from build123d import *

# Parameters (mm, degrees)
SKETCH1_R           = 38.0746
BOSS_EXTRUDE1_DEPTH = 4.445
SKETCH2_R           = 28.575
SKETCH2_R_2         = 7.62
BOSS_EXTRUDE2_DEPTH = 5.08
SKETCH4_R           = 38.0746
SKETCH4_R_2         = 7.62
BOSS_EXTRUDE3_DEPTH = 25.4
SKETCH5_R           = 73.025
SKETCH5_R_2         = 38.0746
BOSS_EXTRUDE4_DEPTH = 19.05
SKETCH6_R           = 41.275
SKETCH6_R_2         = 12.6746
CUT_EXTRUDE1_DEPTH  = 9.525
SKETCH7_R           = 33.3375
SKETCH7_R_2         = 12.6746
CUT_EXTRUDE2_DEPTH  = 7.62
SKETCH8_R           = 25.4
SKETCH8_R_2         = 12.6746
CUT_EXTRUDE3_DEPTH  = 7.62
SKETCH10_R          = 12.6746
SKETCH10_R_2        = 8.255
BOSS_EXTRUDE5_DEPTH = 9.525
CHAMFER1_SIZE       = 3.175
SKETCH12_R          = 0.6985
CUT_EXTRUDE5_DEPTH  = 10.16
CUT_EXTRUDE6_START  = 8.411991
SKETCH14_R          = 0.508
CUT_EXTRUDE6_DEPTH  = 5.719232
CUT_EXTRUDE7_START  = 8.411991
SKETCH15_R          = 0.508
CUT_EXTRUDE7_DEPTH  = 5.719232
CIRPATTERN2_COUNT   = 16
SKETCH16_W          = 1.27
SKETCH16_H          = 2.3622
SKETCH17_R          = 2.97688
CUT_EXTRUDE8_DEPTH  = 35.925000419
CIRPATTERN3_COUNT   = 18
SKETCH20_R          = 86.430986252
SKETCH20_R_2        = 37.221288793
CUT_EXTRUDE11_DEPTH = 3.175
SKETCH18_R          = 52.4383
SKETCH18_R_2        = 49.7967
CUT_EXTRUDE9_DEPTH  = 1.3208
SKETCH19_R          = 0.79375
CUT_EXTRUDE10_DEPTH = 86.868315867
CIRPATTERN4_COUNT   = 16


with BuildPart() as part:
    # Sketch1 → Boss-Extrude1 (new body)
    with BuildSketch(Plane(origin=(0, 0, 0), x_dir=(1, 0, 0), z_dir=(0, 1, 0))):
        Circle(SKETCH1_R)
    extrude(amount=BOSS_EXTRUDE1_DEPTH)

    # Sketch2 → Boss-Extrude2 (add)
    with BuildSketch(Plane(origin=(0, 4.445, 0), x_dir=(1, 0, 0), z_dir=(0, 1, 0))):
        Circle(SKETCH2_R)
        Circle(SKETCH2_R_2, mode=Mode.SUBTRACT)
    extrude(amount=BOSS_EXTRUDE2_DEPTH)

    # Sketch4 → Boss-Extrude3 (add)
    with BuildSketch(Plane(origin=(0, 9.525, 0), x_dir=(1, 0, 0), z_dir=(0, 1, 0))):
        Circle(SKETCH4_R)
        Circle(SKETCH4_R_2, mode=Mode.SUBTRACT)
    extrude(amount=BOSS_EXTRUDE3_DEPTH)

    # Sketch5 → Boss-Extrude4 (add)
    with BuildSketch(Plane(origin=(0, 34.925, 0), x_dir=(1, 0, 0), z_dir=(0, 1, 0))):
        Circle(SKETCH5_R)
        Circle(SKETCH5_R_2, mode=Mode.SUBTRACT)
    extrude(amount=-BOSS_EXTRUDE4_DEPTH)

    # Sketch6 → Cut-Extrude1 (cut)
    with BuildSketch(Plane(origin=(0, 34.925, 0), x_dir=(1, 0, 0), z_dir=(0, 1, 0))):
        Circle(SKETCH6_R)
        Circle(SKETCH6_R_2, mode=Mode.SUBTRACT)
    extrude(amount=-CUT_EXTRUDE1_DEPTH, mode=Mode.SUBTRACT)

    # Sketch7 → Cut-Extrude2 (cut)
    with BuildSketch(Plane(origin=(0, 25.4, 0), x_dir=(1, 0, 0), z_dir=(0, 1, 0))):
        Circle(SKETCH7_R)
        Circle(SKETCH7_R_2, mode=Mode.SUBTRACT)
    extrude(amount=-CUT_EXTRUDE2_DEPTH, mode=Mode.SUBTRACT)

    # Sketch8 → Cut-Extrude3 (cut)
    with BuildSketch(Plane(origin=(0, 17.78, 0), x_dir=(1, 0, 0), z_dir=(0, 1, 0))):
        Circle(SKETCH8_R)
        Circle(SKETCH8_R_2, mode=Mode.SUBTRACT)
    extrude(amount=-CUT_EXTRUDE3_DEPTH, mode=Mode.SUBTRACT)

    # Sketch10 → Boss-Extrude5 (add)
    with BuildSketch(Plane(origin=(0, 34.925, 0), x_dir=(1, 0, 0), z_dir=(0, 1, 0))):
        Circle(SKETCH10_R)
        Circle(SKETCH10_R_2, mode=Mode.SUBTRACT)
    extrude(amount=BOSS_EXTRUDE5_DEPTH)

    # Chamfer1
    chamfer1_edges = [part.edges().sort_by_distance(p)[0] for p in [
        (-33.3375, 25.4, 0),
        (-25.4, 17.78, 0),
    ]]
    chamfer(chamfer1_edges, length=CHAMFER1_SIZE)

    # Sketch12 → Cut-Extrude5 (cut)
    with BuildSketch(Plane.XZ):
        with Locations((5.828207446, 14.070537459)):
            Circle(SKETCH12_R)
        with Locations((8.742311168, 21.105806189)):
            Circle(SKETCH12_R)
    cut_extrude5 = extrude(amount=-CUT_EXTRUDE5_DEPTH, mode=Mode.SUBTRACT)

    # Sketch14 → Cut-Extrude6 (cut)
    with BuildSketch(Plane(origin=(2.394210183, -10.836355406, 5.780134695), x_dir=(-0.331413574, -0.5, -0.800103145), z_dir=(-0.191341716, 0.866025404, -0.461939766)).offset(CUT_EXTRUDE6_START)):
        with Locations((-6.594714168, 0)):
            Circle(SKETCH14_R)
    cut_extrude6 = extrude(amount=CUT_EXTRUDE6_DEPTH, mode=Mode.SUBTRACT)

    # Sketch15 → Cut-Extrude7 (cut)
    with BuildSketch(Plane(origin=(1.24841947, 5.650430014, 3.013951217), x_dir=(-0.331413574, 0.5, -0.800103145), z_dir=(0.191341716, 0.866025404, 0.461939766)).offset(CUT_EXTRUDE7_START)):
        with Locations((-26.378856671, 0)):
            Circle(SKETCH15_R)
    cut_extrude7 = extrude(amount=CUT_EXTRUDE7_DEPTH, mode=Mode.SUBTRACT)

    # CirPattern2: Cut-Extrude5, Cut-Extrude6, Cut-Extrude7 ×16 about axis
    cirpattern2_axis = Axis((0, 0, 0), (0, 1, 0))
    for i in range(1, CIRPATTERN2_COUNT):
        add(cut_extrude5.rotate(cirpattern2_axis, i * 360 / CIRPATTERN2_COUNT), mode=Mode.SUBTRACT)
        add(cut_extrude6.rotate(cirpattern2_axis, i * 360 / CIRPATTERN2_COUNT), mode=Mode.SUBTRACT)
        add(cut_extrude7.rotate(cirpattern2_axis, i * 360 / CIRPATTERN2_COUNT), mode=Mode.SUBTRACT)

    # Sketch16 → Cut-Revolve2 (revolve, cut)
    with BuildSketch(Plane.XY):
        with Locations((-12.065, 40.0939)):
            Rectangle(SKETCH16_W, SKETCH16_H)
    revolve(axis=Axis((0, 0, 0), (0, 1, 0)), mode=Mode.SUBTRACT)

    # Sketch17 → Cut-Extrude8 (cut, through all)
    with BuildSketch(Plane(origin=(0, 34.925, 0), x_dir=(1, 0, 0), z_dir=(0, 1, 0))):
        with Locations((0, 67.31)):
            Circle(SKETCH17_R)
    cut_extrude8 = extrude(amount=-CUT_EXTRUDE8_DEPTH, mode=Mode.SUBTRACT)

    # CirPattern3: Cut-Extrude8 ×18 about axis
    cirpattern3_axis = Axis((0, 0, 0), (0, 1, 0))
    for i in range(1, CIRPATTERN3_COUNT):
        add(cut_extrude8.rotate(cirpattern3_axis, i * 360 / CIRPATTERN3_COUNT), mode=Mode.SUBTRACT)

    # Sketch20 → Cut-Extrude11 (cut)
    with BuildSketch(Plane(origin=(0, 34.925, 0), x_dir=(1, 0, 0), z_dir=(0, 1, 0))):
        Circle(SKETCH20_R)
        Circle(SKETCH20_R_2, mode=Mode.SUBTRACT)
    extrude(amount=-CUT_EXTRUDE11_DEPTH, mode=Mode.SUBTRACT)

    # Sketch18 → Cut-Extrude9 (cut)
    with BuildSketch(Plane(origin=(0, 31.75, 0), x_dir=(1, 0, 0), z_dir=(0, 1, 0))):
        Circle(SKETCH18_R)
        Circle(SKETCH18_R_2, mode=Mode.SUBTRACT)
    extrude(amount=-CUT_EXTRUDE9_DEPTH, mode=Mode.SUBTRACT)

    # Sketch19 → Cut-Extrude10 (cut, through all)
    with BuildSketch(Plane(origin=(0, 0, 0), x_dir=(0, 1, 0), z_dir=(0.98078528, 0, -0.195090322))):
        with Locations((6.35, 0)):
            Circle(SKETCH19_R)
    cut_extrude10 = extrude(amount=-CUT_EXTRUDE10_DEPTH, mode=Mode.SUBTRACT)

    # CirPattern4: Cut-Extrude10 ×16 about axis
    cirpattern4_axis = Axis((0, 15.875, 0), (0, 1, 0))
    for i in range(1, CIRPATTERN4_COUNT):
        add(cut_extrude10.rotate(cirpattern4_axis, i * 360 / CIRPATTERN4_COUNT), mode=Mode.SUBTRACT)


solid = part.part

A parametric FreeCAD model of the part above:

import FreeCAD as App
import Part
import Sketcher
from FreeCAD import Vector
Q = App.Units.Quantity


def edges_at(feature, points):
    """Names of the edges that pass closest to the given points."""
    edges = feature.Shape.Edges
    near = lambda p: min(range(len(edges)), key=lambda i: edges[i].distToShape(Part.Vertex(*p))[0])
    return sorted({f"Edge{near(p) + 1}" for p in points})

doc = App.newDocument("Part")
body = doc.addObject("PartDesign::Body", "Body")

# Sketch on XZ plane
sketch1 = body.newObject("Sketcher::SketchObject", "Sketch")
sketch1.AttachmentSupport = (doc.getObject("XZ_Plane"), [""])
sketch1.MapMode = "FlatFace"
sketch1.addGeometry(Part.Circle(Vector(0, 0, 0), Vector(0, 0, 1), 38.0746), False)
sketch1.addConstraint(Sketcher.Constraint("Coincident", 0, 3, -1, 1))
sketch1.addConstraint(Sketcher.Constraint("Diameter", 0, Q("2.998 in")))
pad1 = body.newObject("PartDesign::Pad", "Pad")
pad1.Profile = sketch1
pad1.Length = Q("0.175 in")
pad1.Reversed = True

# Sketch on XZ plane
sketch2 = body.newObject("Sketcher::SketchObject", "Sketch001")
sketch2.AttachmentSupport = (doc.getObject("XZ_Plane"), [""])
sketch2.MapMode = "FlatFace"
sketch2.AttachmentOffset = App.Placement(Vector(0, 0, -0.175 * 25.4), App.Rotation())
sketch2.addGeometry(Part.Circle(Vector(0, 0, 0), Vector(0, 0, 1), 28.575), False)
sketch2.addGeometry(Part.Circle(Vector(0, 0, 0), Vector(0, 0, 1), 7.62), False)
sketch2.addConstraint(Sketcher.Constraint("Coincident", 0, 3, -1, 1))
sketch2.addConstraint(Sketcher.Constraint("Coincident", 1, 3, -1, 1))
sketch2.addConstraint(Sketcher.Constraint("Diameter", 1, Q("0.6 in")))
sketch2.addConstraint(Sketcher.Constraint("Diameter", 0, Q("2.25 in")))
pad2 = body.newObject("PartDesign::Pad", "Pad001")
pad2.Profile = sketch2
pad2.Length = Q("0.2 in")
pad2.Reversed = True

# Sketch on XZ plane
sketch3 = body.newObject("Sketcher::SketchObject", "Sketch002")
sketch3.AttachmentSupport = (doc.getObject("XZ_Plane"), [""])
sketch3.MapMode = "FlatFace"
sketch3.AttachmentOffset = App.Placement(Vector(0, 0, -0.375 * 25.4), App.Rotation())
sketch3.addGeometry(Part.Circle(Vector(0, 0, 0), Vector(0, 0, 1), 38.0746), False)
sketch3.addGeometry(Part.Circle(Vector(0, 0, 0), Vector(0, 0, 1), 7.62), False)
sketch3.addConstraint(Sketcher.Constraint("Coincident", 0, 3, -1, 1))
sketch3.addConstraint(Sketcher.Constraint("Coincident", 1, 3, -1, 1))
sketch3.addConstraint(Sketcher.Constraint("Diameter", 1, Q("0.6 in")))
sketch3.addConstraint(Sketcher.Constraint("Diameter", 0, Q("2.998 in")))
pad3 = body.newObject("PartDesign::Pad", "Pad002")
pad3.Profile = sketch3
pad3.Length = Q("1 in")
pad3.Reversed = True

# Sketch on XZ plane
sketch4 = body.newObject("Sketcher::SketchObject", "Sketch003")
sketch4.AttachmentSupport = (doc.getObject("XZ_Plane"), [""])
sketch4.MapMode = "FlatFace"
sketch4.AttachmentOffset = App.Placement(Vector(0, 0, -1.375 * 25.4), App.Rotation())
sketch4.addGeometry(Part.Circle(Vector(0, 0, 0), Vector(0, 0, 1), 73.025), False)
sketch4.addGeometry(Part.Circle(Vector(0, 0, 0), Vector(0, 0, 1), 38.0746), False)
sketch4.addConstraint(Sketcher.Constraint("Coincident", 0, 3, -1, 1))
sketch4.addConstraint(Sketcher.Constraint("Coincident", 1, 3, -1, 1))
sketch4.addConstraint(Sketcher.Constraint("Diameter", 0, Q("5.75 in")))
sketch4.addConstraint(Sketcher.Constraint("Diameter", 1, Q("2.998 in")))
pad4 = body.newObject("PartDesign::Pad", "Pad003")
pad4.Profile = sketch4
pad4.Length = Q("0.75 in")

# Sketch on XZ plane
sketch5 = body.newObject("Sketcher::SketchObject", "Sketch004")
sketch5.AttachmentSupport = (doc.getObject("XZ_Plane"), [""])
sketch5.MapMode = "FlatFace"
sketch5.AttachmentOffset = App.Placement(Vector(0, 0, -1.375 * 25.4), App.Rotation())
sketch5.addGeometry(Part.Circle(Vector(0, 0, 0), Vector(0, 0, 1), 41.275), False)
sketch5.addGeometry(Part.Circle(Vector(0, 0, 0), Vector(0, 0, 1), 12.6746), False)
sketch5.addConstraint(Sketcher.Constraint("Coincident", 0, 3, -1, 1))
sketch5.addConstraint(Sketcher.Constraint("Coincident", 1, 3, -1, 1))
sketch5.addConstraint(Sketcher.Constraint("Diameter", 0, Q("3.25 in")))
sketch5.addConstraint(Sketcher.Constraint("Diameter", 1, Q("0.998 in")))
pocket1 = body.newObject("PartDesign::Pocket", "Pocket")
pocket1.Profile = sketch5
pocket1.Length = Q("0.375 in")
pocket1.Reversed = True

# Sketch on XZ plane
sketch6 = body.newObject("Sketcher::SketchObject", "Sketch005")
sketch6.AttachmentSupport = (doc.getObject("XZ_Plane"), [""])
sketch6.MapMode = "FlatFace"
sketch6.AttachmentOffset = App.Placement(Vector(0, 0, -1 * 25.4), App.Rotation())
sketch6.addGeometry(Part.Circle(Vector(0, 0, 0), Vector(0, 0, 1), 33.3375), False)
sketch6.addGeometry(Part.Circle(Vector(0, 0, 0), Vector(0, 0, 1), 12.6746), False)
sketch6.addConstraint(Sketcher.Constraint("Coincident", 0, 3, -1, 1))
sketch6.addConstraint(Sketcher.Constraint("Coincident", 1, 3, -1, 1))
sketch6.addConstraint(Sketcher.Constraint("Diameter", 0, Q("2.625 in")))
sketch6.addConstraint(Sketcher.Constraint("Diameter", 1, Q("0.998 in")))
pocket2 = body.newObject("PartDesign::Pocket", "Pocket001")
pocket2.Profile = sketch6
pocket2.Length = Q("0.3 in")
pocket2.Reversed = True

# Sketch on XZ plane
sketch7 = body.newObject("Sketcher::SketchObject", "Sketch006")
sketch7.AttachmentSupport = (doc.getObject("XZ_Plane"), [""])
sketch7.MapMode = "FlatFace"
sketch7.AttachmentOffset = App.Placement(Vector(0, 0, -0.7 * 25.4), App.Rotation())
sketch7.addGeometry(Part.Circle(Vector(0, 0, 0), Vector(0, 0, 1), 25.4), False)
sketch7.addGeometry(Part.Circle(Vector(0, 0, 0), Vector(0, 0, 1), 12.6746), False)
sketch7.addConstraint(Sketcher.Constraint("Coincident", 0, 3, -1, 1))
sketch7.addConstraint(Sketcher.Constraint("Coincident", 1, 3, -1, 1))
sketch7.addConstraint(Sketcher.Constraint("Diameter", 0, Q("2 in")))
sketch7.addConstraint(Sketcher.Constraint("Diameter", 1, Q("0.998 in")))
pocket3 = body.newObject("PartDesign::Pocket", "Pocket002")
pocket3.Profile = sketch7
pocket3.Length = Q("0.3 in")
pocket3.Reversed = True

# Sketch on XZ plane
sketch8 = body.newObject("Sketcher::SketchObject", "Sketch007")
sketch8.AttachmentSupport = (doc.getObject("XZ_Plane"), [""])
sketch8.MapMode = "FlatFace"
sketch8.AttachmentOffset = App.Placement(Vector(0, 0, -1.375 * 25.4), App.Rotation())
sketch8.addGeometry(Part.Circle(Vector(0, 0, 0), Vector(0, 0, 1), 12.6746), False)
sketch8.addGeometry(Part.Circle(Vector(0, 0, 0), Vector(0, 0, 1), 8.255), False)
sketch8.addConstraint(Sketcher.Constraint("Coincident", 0, 3, -1, 1))
sketch8.addConstraint(Sketcher.Constraint("Coincident", 1, 3, -1, 1))
sketch8.addConstraint(Sketcher.Constraint("Diameter", 1, Q("0.65 in")))
sketch8.addConstraint(Sketcher.Constraint("Diameter", 0, Q("0.998 in")))
pad5 = body.newObject("PartDesign::Pad", "Pad004")
pad5.Profile = sketch8
pad5.Length = Q("0.375 in")
pad5.Reversed = True
doc.recompute()

chamfer = body.newObject("PartDesign::Chamfer", "Chamfer")
chamfer.Base = (pad5, edges_at(pad5, [(-33.337, 25.4, 0), (-25.4, 17.78, 0)]))
chamfer.Size = Q("0.125 in")

# Sketch on XZ plane
sketch9 = body.newObject("Sketcher::SketchObject", "Sketch008")
sketch9.AttachmentSupport = (doc.getObject("XZ_Plane"), [""])
sketch9.MapMode = "FlatFace"
sketch9.addGeometry(Part.Circle(Vector(5.828207, 14.070537, 0), Vector(0, 0, 1), 0.6985), False)
sketch9.addGeometry(Part.Circle(Vector(8.742311, 21.105806, 0), Vector(0, 0, 1), 0.6985), False)
sketch9.addConstraint(Sketcher.Constraint("Equal", 0, 1))
sketch9.addConstraint(Sketcher.Constraint("Diameter", 0, Q("0.055 in")))
sketch9.addConstraint(Sketcher.Constraint("DistanceX", -1, 1, 1, 3, 8.742311))
sketch9.addConstraint(Sketcher.Constraint("DistanceY", 0, 3, 1, 3, 7.035269))
sketch9.addConstraint(Sketcher.Constraint("DistanceX", -1, 1, 0, 3, 5.828207))
sketch9.addConstraint(Sketcher.Constraint("DistanceY", -1, 1, 0, 3, 14.070537))
pocket4 = body.newObject("PartDesign::Pocket", "Pocket003")
pocket4.Profile = sketch9
pocket4.Length = Q("0.4 in")

# Sketch on an angled plane
sketch10 = body.newObject("Sketcher::SketchObject", "Sketch009")
sketch10.Placement = App.Placement(Vector(0.784645, -3.551358, 1.894302), App.Rotation(Vector(-0.331413574, -0.5, -0.800103145), Vector(-0.923879532, 0, 0.382683432), Vector(-0.191341716, 0.866025404, -0.461939766), "ZXY"))
sketch10.addGeometry(Part.Circle(Vector(-6.594714, 0, 0), Vector(0, 0, 1), 0.508), False)
sketch10.addConstraint(Sketcher.Constraint("PointOnObject", 0, 3, -1))
sketch10.addConstraint(Sketcher.Constraint("Diameter", 0, Q("0.04 in")))
sketch10.addConstraint(Sketcher.Constraint("DistanceX", 0, 3, -1, 1, 6.594714))
pocket5 = body.newObject("PartDesign::Pocket", "Pocket004")
pocket5.Profile = sketch10
pocket5.Length = 5.719232
pocket5.Reversed = True

# Sketch on an angled plane
sketch11 = body.newObject("Sketcher::SketchObject", "Sketch010")
sketch11.Placement = App.Placement(Vector(2.857984, 12.935428, 6.899784), App.Rotation(Vector(-0.331413574, 0.5, -0.800103145), Vector(-0.923879532, 0, 0.382683432), Vector(0.191341716, 0.866025404, 0.461939766), "ZXY"))
sketch11.addGeometry(Part.Circle(Vector(-26.378857, 0, 0), Vector(0, 0, 1), 0.508), False)
sketch11.addConstraint(Sketcher.Constraint("PointOnObject", 0, 3, -1))
sketch11.addConstraint(Sketcher.Constraint("Diameter", 0, Q("0.04 in")))
sketch11.addConstraint(Sketcher.Constraint("DistanceX", 0, 3, -1, 1, 26.378857))
pocket6 = body.newObject("PartDesign::Pocket", "Pocket005")
pocket6.Profile = sketch11
pocket6.Length = 5.719232
pocket6.Reversed = True
doc.recompute()

polarpattern = body.newObject("PartDesign::PolarPattern", "PolarPattern")
polarpattern.Originals = [pocket4, pocket5, pocket6]
polarpattern.Axis = (doc.getObject("Y_Axis"), [""])
polarpattern.Angle = 360
polarpattern.Occurrences = 16
body.Tip = polarpattern

# Sketch on XY plane
sketch12 = body.newObject("Sketcher::SketchObject", "Sketch011")
sketch12.AttachmentSupport = (doc.getObject("XY_Plane"), [""])
sketch12.MapMode = "FlatFace"
sketch12.addGeometry(Part.LineSegment(Vector(-12.7, 41.275, 0), Vector(-12.7, 38.9128, 0)), False)
sketch12.addGeometry(Part.LineSegment(Vector(-12.7, 38.9128, 0), Vector(-11.43, 38.9128, 0)), False)
sketch12.addGeometry(Part.LineSegment(Vector(-11.43, 38.9128, 0), Vector(-11.43, 41.275, 0)), False)
sketch12.addGeometry(Part.LineSegment(Vector(-11.43, 41.275, 0), Vector(-12.7, 41.275, 0)), False)
sketch12.addConstraint(Sketcher.Constraint("Coincident", 0, 2, 1, 1))
sketch12.addConstraint(Sketcher.Constraint("Coincident", 1, 2, 2, 1))
sketch12.addConstraint(Sketcher.Constraint("Coincident", 2, 2, 3, 1))
sketch12.addConstraint(Sketcher.Constraint("Coincident", 3, 2, 0, 1))
sketch12.addConstraint(Sketcher.Constraint("Vertical", 0))
sketch12.addConstraint(Sketcher.Constraint("Horizontal", 1))
sketch12.addConstraint(Sketcher.Constraint("Vertical", 2))
sketch12.addConstraint(Sketcher.Constraint("Horizontal", 3))
sketch12.addConstraint(Sketcher.Constraint("DistanceX", 1, 1, 1, 2, Q("0.05 in")))
sketch12.addConstraint(Sketcher.Constraint("DistanceX", 0, 2, -1, 1, Q("0.5 in")))
sketch12.addConstraint(Sketcher.Constraint("DistanceY", 0, 2, 0, 1, Q("0.093 in")))
sketch12.addConstraint(Sketcher.Constraint("DistanceY", -1, 1, 0, 2, Q("1.532 in")))
groove = body.newObject("PartDesign::Groove", "Groove")
groove.Profile = sketch12
groove.ReferenceAxis = (sketch12, ["V_Axis"])
groove.Angle = 360

# Sketch on XZ plane
sketch13 = body.newObject("Sketcher::SketchObject", "Sketch012")
sketch13.AttachmentSupport = (doc.getObject("XZ_Plane"), [""])
sketch13.MapMode = "FlatFace"
sketch13.AttachmentOffset = App.Placement(Vector(0, 0, -1.375 * 25.4), App.Rotation())
sketch13.addGeometry(Part.Circle(Vector(0, -67.31, 0), Vector(0, 0, 1), 2.97688), False)
sketch13.addConstraint(Sketcher.Constraint("PointOnObject", 0, 3, -2))
sketch13.addConstraint(Sketcher.Constraint("Diameter", 0, Q("0.2344 in")))
sketch13.addConstraint(Sketcher.Constraint("DistanceY", 0, 3, -1, 1, Q("2.65 in")))
pocket7 = body.newObject("PartDesign::Pocket", "Pocket006")
pocket7.Profile = sketch13
pocket7.Type = "ThroughAll"
pocket7.Reversed = True
doc.recompute()

polarpattern2 = body.newObject("PartDesign::PolarPattern", "PolarPattern001")
polarpattern2.Originals = [pocket7]
polarpattern2.Axis = (doc.getObject("Y_Axis"), [""])
polarpattern2.Angle = 360
polarpattern2.Occurrences = 18
body.Tip = polarpattern2

# Sketch on XZ plane
sketch14 = body.newObject("Sketcher::SketchObject", "Sketch013")
sketch14.AttachmentSupport = (doc.getObject("XZ_Plane"), [""])
sketch14.MapMode = "FlatFace"
sketch14.AttachmentOffset = App.Placement(Vector(0, 0, -1.375 * 25.4), App.Rotation())
sketch14.addGeometry(Part.Circle(Vector(0, 0, 0), Vector(0, 0, 1), 86.430986), False)
sketch14.addGeometry(Part.Circle(Vector(0, 0, 0), Vector(0, 0, 1), 37.221289), False)
sketch14.addConstraint(Sketcher.Constraint("Coincident", 0, 3, -1, 1))
sketch14.addConstraint(Sketcher.Constraint("Coincident", 1, 3, -1, 1))
sketch14.addConstraint(Sketcher.Constraint("Diameter", 0, 172.861973))
sketch14.addConstraint(Sketcher.Constraint("Diameter", 1, 74.442578))
pocket8 = body.newObject("PartDesign::Pocket", "Pocket007")
pocket8.Profile = sketch14
pocket8.Length = Q("0.125 in")
pocket8.Reversed = True

# Sketch on XZ plane
sketch15 = body.newObject("Sketcher::SketchObject", "Sketch014")
sketch15.AttachmentSupport = (doc.getObject("XZ_Plane"), [""])
sketch15.MapMode = "FlatFace"
sketch15.AttachmentOffset = App.Placement(Vector(0, 0, -1.25 * 25.4), App.Rotation())
sketch15.addGeometry(Part.Circle(Vector(0, 0, 0), Vector(0, 0, 1), 52.4383), False)
sketch15.addGeometry(Part.Circle(Vector(0, 0, 0), Vector(0, 0, 1), 49.7967), False)
sketch15.addConstraint(Sketcher.Constraint("Coincident", 0, 3, -1, 1))
sketch15.addConstraint(Sketcher.Constraint("Coincident", 1, 3, -1, 1))
sketch15.addConstraint(Sketcher.Constraint("Diameter", 0, Q("4.129 in")))
sketch15.addConstraint(Sketcher.Constraint("Diameter", 1, Q("3.921 in")))
pocket9 = body.newObject("PartDesign::Pocket", "Pocket008")
pocket9.Profile = sketch15
pocket9.Length = Q("0.052 in")
pocket9.Reversed = True

# Sketch on an angled plane
sketch16 = body.newObject("Sketcher::SketchObject", "Sketch015")
sketch16.Placement = App.Placement(Vector(0, 0, 0), App.Rotation(Vector(0, 1, 0), Vector(0.195090322, 0, 0.98078528), Vector(0.98078528, 0, -0.195090322), "ZXY"))
sketch16.addGeometry(Part.Circle(Vector(6.35, 0, 0), Vector(0, 0, 1), 0.79375), False)
sketch16.addConstraint(Sketcher.Constraint("PointOnObject", 0, 3, -1))
sketch16.addConstraint(Sketcher.Constraint("Diameter", 0, Q("0.0625 in")))
sketch16.addConstraint(Sketcher.Constraint("DistanceX", -1, 1, 0, 3, Q("0.25 in")))
pocket10 = body.newObject("PartDesign::Pocket", "Pocket009")
pocket10.Profile = sketch16
pocket10.Type = "ThroughAll"
doc.recompute()

polarpattern3 = body.newObject("PartDesign::PolarPattern", "PolarPattern002")
polarpattern3.Originals = [pocket10]
polarpattern3.Axis = (doc.getObject("Y_Axis"), [""])
polarpattern3.Angle = 360
polarpattern3.Occurrences = 16
body.Tip = polarpattern3

doc.recompute()
